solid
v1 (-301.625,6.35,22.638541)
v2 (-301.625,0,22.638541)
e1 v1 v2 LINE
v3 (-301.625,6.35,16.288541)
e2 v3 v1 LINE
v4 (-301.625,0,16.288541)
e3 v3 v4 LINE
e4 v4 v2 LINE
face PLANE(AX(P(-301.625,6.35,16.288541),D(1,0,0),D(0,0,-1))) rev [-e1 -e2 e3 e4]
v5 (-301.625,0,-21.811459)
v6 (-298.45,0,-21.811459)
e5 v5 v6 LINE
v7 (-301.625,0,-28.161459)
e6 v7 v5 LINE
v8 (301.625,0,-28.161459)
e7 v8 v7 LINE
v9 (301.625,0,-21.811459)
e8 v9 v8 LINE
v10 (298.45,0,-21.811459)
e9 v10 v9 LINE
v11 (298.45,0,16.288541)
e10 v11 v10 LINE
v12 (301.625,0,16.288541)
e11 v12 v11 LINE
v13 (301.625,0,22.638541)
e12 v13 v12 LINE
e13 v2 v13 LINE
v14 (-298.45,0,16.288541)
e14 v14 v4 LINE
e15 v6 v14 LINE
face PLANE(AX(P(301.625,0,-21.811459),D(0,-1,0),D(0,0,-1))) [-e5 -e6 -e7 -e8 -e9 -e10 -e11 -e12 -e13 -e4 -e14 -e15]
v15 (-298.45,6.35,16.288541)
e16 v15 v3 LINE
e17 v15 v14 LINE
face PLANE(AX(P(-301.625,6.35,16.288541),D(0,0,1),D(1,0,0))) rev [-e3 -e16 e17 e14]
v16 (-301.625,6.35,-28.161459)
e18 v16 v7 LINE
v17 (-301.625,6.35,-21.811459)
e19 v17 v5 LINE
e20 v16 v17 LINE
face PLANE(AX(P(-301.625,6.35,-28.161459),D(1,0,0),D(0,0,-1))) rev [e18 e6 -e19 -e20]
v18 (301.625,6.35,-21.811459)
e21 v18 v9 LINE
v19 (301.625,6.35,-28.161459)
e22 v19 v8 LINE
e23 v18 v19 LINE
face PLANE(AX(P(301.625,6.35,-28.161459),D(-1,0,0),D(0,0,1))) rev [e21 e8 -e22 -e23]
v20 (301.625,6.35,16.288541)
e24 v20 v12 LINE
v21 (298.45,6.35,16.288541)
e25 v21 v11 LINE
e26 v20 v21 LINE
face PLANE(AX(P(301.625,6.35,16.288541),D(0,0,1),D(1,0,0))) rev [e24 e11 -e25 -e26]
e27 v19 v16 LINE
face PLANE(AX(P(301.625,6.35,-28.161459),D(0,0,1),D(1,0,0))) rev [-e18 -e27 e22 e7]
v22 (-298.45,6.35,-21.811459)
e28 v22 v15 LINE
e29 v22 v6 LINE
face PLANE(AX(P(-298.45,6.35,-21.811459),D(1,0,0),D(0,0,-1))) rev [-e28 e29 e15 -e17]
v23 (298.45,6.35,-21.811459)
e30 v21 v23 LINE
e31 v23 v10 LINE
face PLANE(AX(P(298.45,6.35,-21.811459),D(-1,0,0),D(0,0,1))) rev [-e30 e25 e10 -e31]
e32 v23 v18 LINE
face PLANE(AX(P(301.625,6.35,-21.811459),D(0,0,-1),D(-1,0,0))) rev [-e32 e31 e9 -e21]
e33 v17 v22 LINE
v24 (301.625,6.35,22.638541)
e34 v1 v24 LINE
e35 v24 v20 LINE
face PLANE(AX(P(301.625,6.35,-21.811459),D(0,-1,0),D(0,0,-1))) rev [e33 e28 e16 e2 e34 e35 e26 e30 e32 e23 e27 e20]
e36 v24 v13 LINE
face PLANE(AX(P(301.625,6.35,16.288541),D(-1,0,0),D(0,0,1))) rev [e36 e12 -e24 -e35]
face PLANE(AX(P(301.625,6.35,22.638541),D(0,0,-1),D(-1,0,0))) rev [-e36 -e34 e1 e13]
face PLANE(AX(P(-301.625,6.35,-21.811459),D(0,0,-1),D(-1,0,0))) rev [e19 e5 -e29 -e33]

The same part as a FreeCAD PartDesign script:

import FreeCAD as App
import Part
import Sketcher

V = App.Vector
Q = App.Units.Quantity


def add_polygon(sketch, points):
    """Adds a closed chain of lines whose ends are joined by coincident constraints."""
    first, n = sketch.GeometryCount, len(points)
    for a, b in zip(points, points[1:] + points[:1]):
        sketch.addGeometry(Part.LineSegment(App.Vector(*a, 0), App.Vector(*b, 0)), False)
    for i in range(n):
        sketch.addConstraint(Sketcher.Constraint("Coincident", first + i, 2, first + (i + 1) % n, 1))

doc = App.newDocument("Part")
body = doc.addObject("PartDesign::Body", "Body")

sketch1 = body.newObject("Sketcher::SketchObject", "Sketch")
sketch1.AttachmentSupport = (doc.getObject("XZ_Plane"), [""])
sketch1.MapMode = "FlatFace"
add_polygon(sketch1, [(-298.45, -21.811459), (-298.45, 16.288541), (-301.625, 16.288541), (-301.625, 22.638541), (301.625, 22.638541), (301.625, 16.288541), (298.45, 16.288541), (298.45, -21.811459), (301.625, -21.811459), (301.625, -28.161459), (-301.625, -28.161459), (-301.625, -21.811459)])
sketch1.addConstraint([
    Sketcher.Constraint("Vertical", 0),
    Sketcher.Constraint("Horizontal", 1),
    Sketcher.Constraint("Vertical", 2),
    Sketcher.Constraint("Horizontal", 3),
    Sketcher.Constraint("Vertical", 4),
    Sketcher.Constraint("Horizontal", 5),
    Sketcher.Constraint("Vertical", 6),
    Sketcher.Constraint("Horizontal", 7),
    Sketcher.Constraint("Vertical", 8),
    Sketcher.Constraint("Horizontal", 9),
    Sketcher.Constraint("Vertical", 10),
    Sketcher.Constraint("Horizontal", 11),
    Sketcher.Constraint("Symmetric", 1, 2, 4, 2, -2),
    Sketcher.Constraint("Symmetric", 7, 2, 10, 2, -2),
    Sketcher.Constraint("Vertical", 4, 2, 7, 2),
    Sketcher.Constraint("Equal", 1, 5),
    Sketcher.Constraint("Equal", 4, 8),
    Sketcher.Constraint("DistanceY", 0, 1, 0, 2, Q("1.5 in")),
    Sketcher.Constraint("DistanceY", 8, 2, 3, 2, Q("2 in")),
    Sketcher.Constraint("DistanceX", 3, 1, 3, 2, Q("23.75 in")),
    Sketcher.Constraint("DistanceX", 0, 2, 5, 2, Q("23.5 in")),
    Sketcher.Constraint("DistanceY", -1, 1, 0, 2, Q("16.288541 mm")),
])
pad1 = body.newObject("PartDesign::Pad", "Pad")
pad1.Profile = sketch1
pad1.Length = Q("0.25 in")
pad1.Reversed = True

doc.recompute()
